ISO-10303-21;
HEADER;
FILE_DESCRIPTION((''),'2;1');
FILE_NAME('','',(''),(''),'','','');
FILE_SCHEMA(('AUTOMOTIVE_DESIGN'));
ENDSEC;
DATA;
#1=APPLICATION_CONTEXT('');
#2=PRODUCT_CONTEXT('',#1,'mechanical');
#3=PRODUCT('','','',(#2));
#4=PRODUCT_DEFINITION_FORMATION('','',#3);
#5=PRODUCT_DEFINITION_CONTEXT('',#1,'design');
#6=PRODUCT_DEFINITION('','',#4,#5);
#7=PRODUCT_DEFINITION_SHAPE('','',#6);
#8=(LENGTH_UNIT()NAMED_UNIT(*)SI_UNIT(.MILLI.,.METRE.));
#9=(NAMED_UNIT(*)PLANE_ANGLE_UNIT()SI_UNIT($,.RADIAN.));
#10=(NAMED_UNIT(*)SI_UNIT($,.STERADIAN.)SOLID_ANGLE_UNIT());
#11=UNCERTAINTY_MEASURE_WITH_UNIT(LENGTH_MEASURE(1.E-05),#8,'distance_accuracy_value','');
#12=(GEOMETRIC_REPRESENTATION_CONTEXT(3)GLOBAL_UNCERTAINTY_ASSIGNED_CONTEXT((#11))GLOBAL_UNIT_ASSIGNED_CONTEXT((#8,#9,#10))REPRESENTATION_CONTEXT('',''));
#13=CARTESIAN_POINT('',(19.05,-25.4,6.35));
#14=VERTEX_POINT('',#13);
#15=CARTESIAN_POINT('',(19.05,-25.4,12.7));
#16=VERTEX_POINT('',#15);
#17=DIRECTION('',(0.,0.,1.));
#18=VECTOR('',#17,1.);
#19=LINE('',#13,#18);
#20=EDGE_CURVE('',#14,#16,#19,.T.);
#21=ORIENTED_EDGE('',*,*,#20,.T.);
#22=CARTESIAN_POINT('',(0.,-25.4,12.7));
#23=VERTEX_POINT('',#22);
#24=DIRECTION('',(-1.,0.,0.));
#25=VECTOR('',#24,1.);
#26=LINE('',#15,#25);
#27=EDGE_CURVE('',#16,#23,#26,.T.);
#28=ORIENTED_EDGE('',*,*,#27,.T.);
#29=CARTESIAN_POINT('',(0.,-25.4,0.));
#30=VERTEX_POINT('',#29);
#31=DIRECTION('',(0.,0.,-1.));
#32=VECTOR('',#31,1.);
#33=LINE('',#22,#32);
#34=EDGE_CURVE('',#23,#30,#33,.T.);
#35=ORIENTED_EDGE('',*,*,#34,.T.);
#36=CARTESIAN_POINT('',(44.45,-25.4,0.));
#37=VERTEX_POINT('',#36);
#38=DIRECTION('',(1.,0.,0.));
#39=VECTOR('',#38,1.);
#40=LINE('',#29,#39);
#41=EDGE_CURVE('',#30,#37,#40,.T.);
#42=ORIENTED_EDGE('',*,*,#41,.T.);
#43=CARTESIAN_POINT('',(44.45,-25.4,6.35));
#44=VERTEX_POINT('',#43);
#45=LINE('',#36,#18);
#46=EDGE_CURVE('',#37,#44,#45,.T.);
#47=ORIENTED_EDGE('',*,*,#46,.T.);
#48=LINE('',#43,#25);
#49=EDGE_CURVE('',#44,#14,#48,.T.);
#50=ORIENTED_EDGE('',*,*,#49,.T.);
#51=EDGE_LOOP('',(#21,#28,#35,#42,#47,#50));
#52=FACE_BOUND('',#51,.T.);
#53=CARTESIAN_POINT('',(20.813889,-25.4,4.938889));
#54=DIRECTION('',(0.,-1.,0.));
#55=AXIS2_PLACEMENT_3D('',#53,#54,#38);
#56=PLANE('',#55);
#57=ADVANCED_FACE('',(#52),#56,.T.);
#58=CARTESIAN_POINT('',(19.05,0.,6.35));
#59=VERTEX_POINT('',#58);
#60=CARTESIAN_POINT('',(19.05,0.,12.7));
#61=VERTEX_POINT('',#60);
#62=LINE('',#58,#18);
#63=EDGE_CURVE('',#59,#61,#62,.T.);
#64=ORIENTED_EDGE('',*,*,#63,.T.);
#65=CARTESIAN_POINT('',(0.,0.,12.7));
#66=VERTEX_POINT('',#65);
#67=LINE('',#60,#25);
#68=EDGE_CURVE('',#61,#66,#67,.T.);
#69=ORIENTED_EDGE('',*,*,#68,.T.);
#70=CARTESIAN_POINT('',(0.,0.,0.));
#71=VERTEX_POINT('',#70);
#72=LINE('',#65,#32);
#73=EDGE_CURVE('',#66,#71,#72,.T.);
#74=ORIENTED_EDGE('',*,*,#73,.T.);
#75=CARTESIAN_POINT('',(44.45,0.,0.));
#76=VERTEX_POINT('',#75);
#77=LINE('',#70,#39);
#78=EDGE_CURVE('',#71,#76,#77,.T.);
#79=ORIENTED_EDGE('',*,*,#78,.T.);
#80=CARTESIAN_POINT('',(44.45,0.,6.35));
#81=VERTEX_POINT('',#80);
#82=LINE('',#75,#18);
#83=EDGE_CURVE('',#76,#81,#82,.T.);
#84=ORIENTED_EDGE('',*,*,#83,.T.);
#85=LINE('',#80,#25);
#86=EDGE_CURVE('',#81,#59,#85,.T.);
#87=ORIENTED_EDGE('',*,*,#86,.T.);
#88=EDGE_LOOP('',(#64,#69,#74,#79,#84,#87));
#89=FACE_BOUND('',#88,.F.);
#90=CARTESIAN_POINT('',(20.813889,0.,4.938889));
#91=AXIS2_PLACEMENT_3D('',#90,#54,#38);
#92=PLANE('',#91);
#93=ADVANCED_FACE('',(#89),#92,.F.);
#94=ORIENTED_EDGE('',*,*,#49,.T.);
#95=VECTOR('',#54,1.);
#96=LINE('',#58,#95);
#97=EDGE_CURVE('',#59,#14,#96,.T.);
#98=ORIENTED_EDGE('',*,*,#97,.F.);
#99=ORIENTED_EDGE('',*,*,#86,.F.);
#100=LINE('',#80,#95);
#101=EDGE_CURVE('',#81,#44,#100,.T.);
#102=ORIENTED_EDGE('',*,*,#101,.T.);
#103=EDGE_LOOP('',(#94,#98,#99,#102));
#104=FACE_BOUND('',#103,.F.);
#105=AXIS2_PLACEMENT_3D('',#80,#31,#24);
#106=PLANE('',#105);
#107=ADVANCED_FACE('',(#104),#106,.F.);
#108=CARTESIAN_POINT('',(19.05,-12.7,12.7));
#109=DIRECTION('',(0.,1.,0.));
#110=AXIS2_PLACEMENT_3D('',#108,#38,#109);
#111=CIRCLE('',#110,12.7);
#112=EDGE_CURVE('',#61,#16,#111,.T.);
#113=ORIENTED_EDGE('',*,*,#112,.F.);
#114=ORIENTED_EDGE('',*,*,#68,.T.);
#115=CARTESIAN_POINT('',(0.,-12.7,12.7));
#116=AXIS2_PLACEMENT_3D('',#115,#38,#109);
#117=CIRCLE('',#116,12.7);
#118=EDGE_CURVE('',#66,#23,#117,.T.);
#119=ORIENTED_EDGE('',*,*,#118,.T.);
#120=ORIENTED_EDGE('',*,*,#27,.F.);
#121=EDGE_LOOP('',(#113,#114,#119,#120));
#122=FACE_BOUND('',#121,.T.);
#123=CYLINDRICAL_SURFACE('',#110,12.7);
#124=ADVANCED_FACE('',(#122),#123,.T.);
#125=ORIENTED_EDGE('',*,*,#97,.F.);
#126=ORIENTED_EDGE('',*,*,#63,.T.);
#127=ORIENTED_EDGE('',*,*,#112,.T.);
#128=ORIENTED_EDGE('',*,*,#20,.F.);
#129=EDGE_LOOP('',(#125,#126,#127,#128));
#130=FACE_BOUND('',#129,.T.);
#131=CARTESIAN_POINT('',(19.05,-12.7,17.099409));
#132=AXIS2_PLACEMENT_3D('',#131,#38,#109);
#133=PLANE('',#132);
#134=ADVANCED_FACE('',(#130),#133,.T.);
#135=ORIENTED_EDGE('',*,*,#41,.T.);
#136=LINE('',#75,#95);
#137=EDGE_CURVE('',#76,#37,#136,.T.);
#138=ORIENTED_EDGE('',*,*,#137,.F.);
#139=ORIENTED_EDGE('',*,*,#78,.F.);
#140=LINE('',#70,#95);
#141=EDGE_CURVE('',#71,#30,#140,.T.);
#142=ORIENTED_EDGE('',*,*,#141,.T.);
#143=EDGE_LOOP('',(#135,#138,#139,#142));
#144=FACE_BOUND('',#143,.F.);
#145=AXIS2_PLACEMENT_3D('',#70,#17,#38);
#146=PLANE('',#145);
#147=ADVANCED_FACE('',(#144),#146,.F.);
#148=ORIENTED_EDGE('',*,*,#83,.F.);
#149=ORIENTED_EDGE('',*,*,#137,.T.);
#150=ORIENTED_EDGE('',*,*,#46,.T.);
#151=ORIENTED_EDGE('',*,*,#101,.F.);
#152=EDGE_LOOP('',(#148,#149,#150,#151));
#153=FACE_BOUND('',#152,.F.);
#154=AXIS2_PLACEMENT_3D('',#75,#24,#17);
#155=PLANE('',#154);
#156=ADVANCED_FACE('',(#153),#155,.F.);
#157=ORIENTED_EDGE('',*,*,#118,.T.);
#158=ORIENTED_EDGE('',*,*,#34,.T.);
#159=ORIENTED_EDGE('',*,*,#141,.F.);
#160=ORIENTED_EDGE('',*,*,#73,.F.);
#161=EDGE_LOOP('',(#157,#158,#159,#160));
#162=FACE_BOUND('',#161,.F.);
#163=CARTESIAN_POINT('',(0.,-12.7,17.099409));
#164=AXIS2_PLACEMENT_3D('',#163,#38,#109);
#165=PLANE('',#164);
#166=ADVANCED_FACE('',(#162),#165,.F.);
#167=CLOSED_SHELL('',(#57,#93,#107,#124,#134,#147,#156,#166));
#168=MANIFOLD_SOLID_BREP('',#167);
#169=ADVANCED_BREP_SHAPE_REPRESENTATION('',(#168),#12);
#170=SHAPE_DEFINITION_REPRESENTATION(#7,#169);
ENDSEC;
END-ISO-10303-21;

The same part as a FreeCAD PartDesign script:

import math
import FreeCAD as App
import Part
import Sketcher

V = App.Vector
Q = App.Units.Quantity

doc = App.newDocument("Part")
body = doc.addObject("PartDesign::Body", "Body")

sketch1 = body.newObject("Sketcher::SketchObject", "Sketch")
sketch1.AttachmentSupport = (doc.getObject("XZ_Plane"), [""])
sketch1.MapMode = "FlatFace"
sketch1.addGeometry([
    Part.LineSegment(V(0, 13, 0), V(0, 0, 0)),
    Part.LineSegment(V(0, 0, 0), V(44, 0, 0)),
    Part.LineSegment(V(44, 0, 0), V(44, 6, 0)),
    Part.LineSegment(V(44, 6, 0), V(19, 6, 0)),
    Part.LineSegment(V(19, 6, 0), V(19, 13, 0)),
    Part.LineSegment(V(19, 13, 0), V(0, 13, 0)),
], False)
sketch1.addConstraint([
    Sketcher.Constraint("Coincident", 0, 2, 1, 1),
    Sketcher.Constraint("Coincident", 1, 2, 2, 1),
    Sketcher.Constraint("Coincident", 2, 2, 3, 1),
    Sketcher.Constraint("Coincident", 3, 2, 4, 1),
    Sketcher.Constraint("Coincident", 4, 2, 5, 1),
    Sketcher.Constraint("Coincident", 5, 2, 0, 1),
    Sketcher.Constraint("Vertical", 0),
    Sketcher.Constraint("Horizontal", 1),
    Sketcher.Constraint("Vertical", 2),
    Sketcher.Constraint("Horizontal", 3),
    Sketcher.Constraint("Vertical", 4),
    Sketcher.Constraint("Horizontal", 5),
    Sketcher.Constraint("Coincident", 0, 2, -1, 1),
    Sketcher.Constraint("Equal", 2, 4),
    Sketcher.Constraint("DistanceX", 3, 2, 3, 1, Q("1 in")),
    Sketcher.Constraint("DistanceY", 0, 2, 0, 1, Q("0.5 in")),
    Sketcher.Constraint("DistanceX", 1, 1, 1, 2, Q("1.75 in")),
])
pad1 = body.newObject("PartDesign::Pad", "Pad")
pad1.Profile = sketch1
pad1.Length = Q("1 in")

sketch2 = body.newObject("Sketcher::SketchObject", "Sketch001")
sketch2.AttachmentSupport = (doc.getObject("YZ_Plane"), [""])
sketch2.MapMode = "FlatFace"
sketch2.AttachmentOffset = App.Placement(V(0, 0, 0.75 * 25.4), App.Rotation())
sketch2.addGeometry([
    Part.LineSegment(V(-25, 13, 0), V(0, 13, 0)),
    Part.ArcOfCircle(Part.Circle(V(-13, 13, 0), V(0, 0, 1), 13), math.radians(0), math.radians(180)),
], False)
sketch2.addConstraint([
    Sketcher.Constraint("Coincident", 0, 1, 1, 2),
    Sketcher.Constraint("Coincident", 1, 1, 0, 2),
    Sketcher.Constraint("Horizontal", 0),
    Sketcher.Constraint("PointOnObject", 1, 1, -2),
    Sketcher.Constraint("Horizontal", 1, 3, 0, 1),
    Sketcher.Constraint("Radius", 1, Q("0.5 in")),
    Sketcher.Constraint("DistanceY", -1, 1, 1, 3, Q("0.5 in")),
])
pad2 = body.newObject("PartDesign::Pad", "Pad001")
pad2.Profile = sketch2
pad2.Length = Q("0.75 in")
pad2.Reversed = True

doc.recompute()
